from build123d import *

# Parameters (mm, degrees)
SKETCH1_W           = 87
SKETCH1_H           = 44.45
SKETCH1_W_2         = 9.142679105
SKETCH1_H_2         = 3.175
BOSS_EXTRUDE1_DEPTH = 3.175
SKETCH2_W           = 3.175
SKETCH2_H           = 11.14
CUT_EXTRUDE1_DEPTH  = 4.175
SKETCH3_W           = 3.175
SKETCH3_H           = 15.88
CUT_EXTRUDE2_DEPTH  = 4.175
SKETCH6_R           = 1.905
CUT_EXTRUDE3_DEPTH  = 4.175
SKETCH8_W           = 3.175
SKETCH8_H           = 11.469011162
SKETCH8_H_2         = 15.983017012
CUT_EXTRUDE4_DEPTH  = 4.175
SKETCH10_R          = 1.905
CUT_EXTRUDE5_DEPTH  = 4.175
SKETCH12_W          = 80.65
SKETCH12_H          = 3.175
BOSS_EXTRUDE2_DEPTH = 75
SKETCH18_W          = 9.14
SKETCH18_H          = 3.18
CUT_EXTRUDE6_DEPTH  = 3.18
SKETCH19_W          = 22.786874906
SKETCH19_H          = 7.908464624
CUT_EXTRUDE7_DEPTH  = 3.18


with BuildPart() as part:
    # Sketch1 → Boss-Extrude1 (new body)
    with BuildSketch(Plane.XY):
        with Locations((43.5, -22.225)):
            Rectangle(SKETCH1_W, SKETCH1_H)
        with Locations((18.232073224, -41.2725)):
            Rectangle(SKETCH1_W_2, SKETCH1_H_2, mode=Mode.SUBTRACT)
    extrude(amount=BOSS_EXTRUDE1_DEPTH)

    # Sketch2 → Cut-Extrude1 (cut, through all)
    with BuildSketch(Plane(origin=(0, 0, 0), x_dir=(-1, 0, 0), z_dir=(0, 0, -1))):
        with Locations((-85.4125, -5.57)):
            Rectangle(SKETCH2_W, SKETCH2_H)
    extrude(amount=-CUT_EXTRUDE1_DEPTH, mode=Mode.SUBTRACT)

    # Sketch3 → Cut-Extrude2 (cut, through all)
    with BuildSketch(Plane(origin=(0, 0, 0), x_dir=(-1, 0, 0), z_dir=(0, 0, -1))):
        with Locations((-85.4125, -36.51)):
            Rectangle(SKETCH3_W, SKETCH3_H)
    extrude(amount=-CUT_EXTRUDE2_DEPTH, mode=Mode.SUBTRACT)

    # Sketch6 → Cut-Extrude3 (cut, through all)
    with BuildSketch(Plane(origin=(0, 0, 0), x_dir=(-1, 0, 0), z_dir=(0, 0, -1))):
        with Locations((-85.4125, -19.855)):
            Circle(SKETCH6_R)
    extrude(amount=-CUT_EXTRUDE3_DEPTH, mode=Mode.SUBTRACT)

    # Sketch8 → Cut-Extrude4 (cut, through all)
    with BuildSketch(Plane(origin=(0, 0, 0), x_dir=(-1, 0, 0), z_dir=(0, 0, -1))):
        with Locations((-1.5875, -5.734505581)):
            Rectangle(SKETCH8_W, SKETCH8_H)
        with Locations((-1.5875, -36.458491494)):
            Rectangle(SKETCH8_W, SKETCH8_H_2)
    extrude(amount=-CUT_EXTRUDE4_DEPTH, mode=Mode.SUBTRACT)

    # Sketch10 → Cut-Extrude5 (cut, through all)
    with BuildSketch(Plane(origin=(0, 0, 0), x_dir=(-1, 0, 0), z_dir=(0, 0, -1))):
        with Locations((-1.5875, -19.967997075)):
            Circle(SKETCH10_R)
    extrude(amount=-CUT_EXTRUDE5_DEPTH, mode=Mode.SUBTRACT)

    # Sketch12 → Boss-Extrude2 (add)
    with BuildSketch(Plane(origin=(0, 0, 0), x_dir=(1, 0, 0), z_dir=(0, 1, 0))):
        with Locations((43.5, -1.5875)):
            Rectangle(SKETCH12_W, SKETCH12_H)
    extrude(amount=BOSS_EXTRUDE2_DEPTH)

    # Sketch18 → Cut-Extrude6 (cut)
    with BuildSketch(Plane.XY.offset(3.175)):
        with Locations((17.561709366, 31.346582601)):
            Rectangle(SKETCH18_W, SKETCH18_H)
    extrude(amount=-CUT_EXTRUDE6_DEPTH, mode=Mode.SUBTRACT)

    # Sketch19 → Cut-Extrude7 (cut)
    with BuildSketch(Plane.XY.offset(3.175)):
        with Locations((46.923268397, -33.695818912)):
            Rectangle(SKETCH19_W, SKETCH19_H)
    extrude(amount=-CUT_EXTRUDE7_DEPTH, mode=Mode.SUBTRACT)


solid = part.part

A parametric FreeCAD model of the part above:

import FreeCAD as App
import Part
import Sketcher
Q = App.Units.Quantity

doc = App.newDocument("Part")
body = doc.addObject("PartDesign::Body", "Body")

sketch1 = doc.addObject("Sketcher::SketchObject", "Sketch")
body.addObject(sketch1)
sketch1.AttachmentSupport = (doc.XY_Plane, [""])
sketch1.MapMode = "FlatFace"
sketch1.addGeometry(Part.LineSegment(App.Vector(0, 0, 0), App.Vector(0, -44.5, 0)), False)
sketch1.addGeometry(Part.LineSegment(App.Vector(0, -44.5, 0), App.Vector(87, -44.5, 0)), False)
sketch1.addGeometry(Part.LineSegment(App.Vector(87, -44.5, 0), App.Vector(87, 0, 0)), False)
sketch1.addGeometry(Part.LineSegment(App.Vector(87, 0, 0), App.Vector(0, 0, 0)), False)
sketch1.addGeometry(Part.LineSegment(App.Vector(22.8, -42.9, 0), App.Vector(13.7, -42.9, 0)), False)
sketch1.addGeometry(Part.LineSegment(App.Vector(13.7, -42.9, 0), App.Vector(13.7, -39.7, 0)), False)
sketch1.addGeometry(Part.LineSegment(App.Vector(13.7, -39.7, 0), App.Vector(22.8, -39.7, 0)), False)
sketch1.addGeometry(Part.LineSegment(App.Vector(22.8, -39.7, 0), App.Vector(22.8, -42.9, 0)), False)
sketch1.addConstraint(Sketcher.Constraint("Coincident", 0, 2, 1, 1))
sketch1.addConstraint(Sketcher.Constraint("Coincident", 1, 2, 2, 1))
sketch1.addConstraint(Sketcher.Constraint("Coincident", 2, 2, 3, 1))
sketch1.addConstraint(Sketcher.Constraint("Coincident", 3, 2, 0, 1))
sketch1.addConstraint(Sketcher.Constraint("Coincident", 4, 2, 5, 1))
sketch1.addConstraint(Sketcher.Constraint("Coincident", 5, 2, 6, 1))
sketch1.addConstraint(Sketcher.Constraint("Coincident", 6, 2, 7, 1))
sketch1.addConstraint(Sketcher.Constraint("Coincident", 7, 2, 4, 1))
sketch1.addConstraint(Sketcher.Constraint("Vertical", 0))
sketch1.addConstraint(Sketcher.Constraint("Horizontal", 1))
sketch1.addConstraint(Sketcher.Constraint("Vertical", 2))
sketch1.addConstraint(Sketcher.Constraint("Horizontal", 3))
sketch1.addConstraint(Sketcher.Constraint("Horizontal", 4))
sketch1.addConstraint(Sketcher.Constraint("Vertical", 5))
sketch1.addConstraint(Sketcher.Constraint("Horizontal", 6))
sketch1.addConstraint(Sketcher.Constraint("Vertical", 7))
sketch1.addConstraint(Sketcher.Constraint("Coincident", 3, 2, -1, 1))
sketch1.addConstraint(Sketcher.Constraint("DistanceY", 0, 2, 0, 1, Q("1.75 in")))
sketch1.addConstraint(Sketcher.Constraint("DistanceY", 5, 1, 5, 2, Q("0.125 in")))
sketch1.addConstraint(Sketcher.Constraint("DistanceX", 1, 1, 1, 2, Q("87 mm")))
sketch1.addConstraint(Sketcher.Constraint("DistanceX", 4, 2, 4, 1, Q("9.142679 mm")))
sketch1.addConstraint(Sketcher.Constraint("DistanceY", 4, 2, -1, 1, Q("42.86 mm")))
sketch1.addConstraint(Sketcher.Constraint("DistanceX", -1, 1, 4, 2, Q("13.660734 mm")))
pad1 = doc.addObject("PartDesign::Pad", "Pad")
body.addObject(pad1)
pad1.Profile = sketch1
pad1.Length = Q("0.125 in")

sketch2 = doc.addObject("Sketcher::SketchObject", "Sketch001")
body.addObject(sketch2)
sketch2.AttachmentSupport = (doc.XY_Plane, [""])
sketch2.MapMode = "FlatFace"
sketch2.addGeometry(Part.LineSegment(App.Vector(87, 0, 0), App.Vector(87, -11.1, 0)), False)
sketch2.addGeometry(Part.LineSegment(App.Vector(87, -11.1, 0), App.Vector(83.8, -11.1, 0)), False)
sketch2.addGeometry(Part.LineSegment(App.Vector(83.8, -11.1, 0), App.Vector(83.8, 0, 0)), False)
sketch2.addGeometry(Part.LineSegment(App.Vector(83.8, 0, 0), App.Vector(87, 0, 0)), False)
sketch2.addConstraint(Sketcher.Constraint("Coincident", 0, 2, 1, 1))
sketch2.addConstraint(Sketcher.Constraint("Coincident", 1, 2, 2, 1))
sketch2.addConstraint(Sketcher.Constraint("Coincident", 2, 2, 3, 1))
sketch2.addConstraint(Sketcher.Constraint("Coincident", 3, 2, 0, 1))
sketch2.addConstraint(Sketcher.Constraint("Vertical", 0))
sketch2.addConstraint(Sketcher.Constraint("Horizontal", 1))
sketch2.addConstraint(Sketcher.Constraint("Vertical", 2))
sketch2.addConstraint(Sketcher.Constraint("Horizontal", 3))
sketch2.addConstraint(Sketcher.Constraint("PointOnObject", 2, 2, -1))
sketch2.addConstraint(Sketcher.Constraint("DistanceX", 1, 2, 1, 1, Q("0.125 in")))
sketch2.addConstraint(Sketcher.Constraint("DistanceY", 0, 2, 0, 1, Q("11.14 mm")))
sketch2.addConstraint(Sketcher.Constraint("DistanceX", -1, 1, 0, 2, Q("87 mm")))
pocket1 = doc.addObject("PartDesign::Pocket", "Pocket")
body.addObject(pocket1)
pocket1.Profile = sketch2
pocket1.Type = "ThroughAll"
pocket1.Reversed = True

sketch3 = doc.addObject("Sketcher::SketchObject", "Sketch002")
body.addObject(sketch3)
sketch3.AttachmentSupport = (doc.XY_Plane, [""])
sketch3.MapMode = "FlatFace"
sketch3.addGeometry(Part.LineSegment(App.Vector(87, -28.6, 0), App.Vector(87, -44.5, 0)), False)
sketch3.addGeometry(Part.LineSegment(App.Vector(87, -44.5, 0), App.Vector(83.8, -44.5, 0)), False)
sketch3.addGeometry(Part.LineSegment(App.Vector(83.8, -44.5, 0), App.Vector(83.8, -28.6, 0)), False)
sketch3.addGeometry(Part.LineSegment(App.Vector(83.8, -28.6, 0), App.Vector(87, -28.6, 0)), False)
sketch3.addConstraint(Sketcher.Constraint("Coincident", 0, 2, 1, 1))
sketch3.addConstraint(Sketcher.Constraint("Coincident", 1, 2, 2, 1))
sketch3.addConstraint(Sketcher.Constraint("Coincident", 2, 2, 3, 1))
sketch3.addConstraint(Sketcher.Constraint("Coincident", 3, 2, 0, 1))
sketch3.addConstraint(Sketcher.Constraint("Vertical", 0))
sketch3.addConstraint(Sketcher.Constraint("Horizontal", 1))
sketch3.addConstraint(Sketcher.Constraint("Vertical", 2))
sketch3.addConstraint(Sketcher.Constraint("Horizontal", 3))
sketch3.addConstraint(Sketcher.Constraint("DistanceX", 1, 2, 1, 1, Q("0.125 in")))
sketch3.addConstraint(Sketcher.Constraint("DistanceY", 0, 2, -1, 1, Q("1.75 in")))
sketch3.addConstraint(Sketcher.Constraint("DistanceY", 0, 2, 0, 1, Q("15.88 mm")))
sketch3.addConstraint(Sketcher.Constraint("DistanceX", -1, 1, 0, 2, Q("87 mm")))
pocket2 = doc.addObject("PartDesign::Pocket", "Pocket001")
body.addObject(pocket2)
pocket2.Profile = sketch3
pocket2.Type = "ThroughAll"
pocket2.Reversed = True

sketch4 = doc.addObject("Sketcher::SketchObject", "Sketch003")
body.addObject(sketch4)
sketch4.AttachmentSupport = (doc.XY_Plane, [""])
sketch4.MapMode = "FlatFace"
sketch4.addGeometry(Part.Circle(App.Vector(85.4, -19.9, 0), App.Vector(0, 0, 1), 1.9), False)
sketch4.addConstraint(Sketcher.Constraint("Diameter", 0, Q("0.15 in")))
sketch4.addConstraint(Sketcher.Constraint("DistanceX", -1, 1, 0, 3, Q("85.4125 mm")))
sketch4.addConstraint(Sketcher.Constraint("DistanceY", 0, 3, -1, 1, Q("19.855 mm")))
pocket3 = doc.addObject("PartDesign::Pocket", "Pocket002")
body.addObject(pocket3)
pocket3.Profile = sketch4
pocket3.Type = "ThroughAll"
pocket3.Reversed = True

sketch5 = doc.addObject("Sketcher::SketchObject", "Sketch004")
body.addObject(sketch5)
sketch5.AttachmentSupport = (doc.XY_Plane, [""])
sketch5.MapMode = "FlatFace"
sketch5.addGeometry(Part.LineSegment(App.Vector(3.2, 0, 0), App.Vector(3.2, -11.5, 0)), False)
sketch5.addGeometry(Part.LineSegment(App.Vector(3.2, -11.5, 0), App.Vector(0, -11.5, 0)), False)
sketch5.addGeometry(Part.LineSegment(App.Vector(0, -11.5, 0), App.Vector(0, 0, 0)), False)
sketch5.addGeometry(Part.LineSegment(App.Vector(0, 0, 0), App.Vector(3.2, 0, 0)), False)
sketch5.addGeometry(Part.LineSegment(App.Vector(3.2, -28.5, 0), App.Vector(3.2, -44.5, 0)), False)
sketch5.addGeometry(Part.LineSegment(App.Vector(3.2, -44.5, 0), App.Vector(0, -44.5, 0)), False)
sketch5.addGeometry(Part.LineSegment(App.Vector(0, -44.5, 0), App.Vector(0, -28.5, 0)), False)
sketch5.addGeometry(Part.LineSegment(App.Vector(0, -28.5, 0), App.Vector(3.2, -28.5, 0)), False)
sketch5.addConstraint(Sketcher.Constraint("Coincident", 0, 2, 1, 1))
sketch5.addConstraint(Sketcher.Constraint("Coincident", 1, 2, 2, 1))
sketch5.addConstraint(Sketcher.Constraint("Coincident", 2, 2, 3, 1))
sketch5.addConstraint(Sketcher.Constraint("Coincident", 3, 2, 0, 1))
sketch5.addConstraint(Sketcher.Constraint("Coincident", 4, 2, 5, 1))
sketch5.addConstraint(Sketcher.Constraint("Coincident", 5, 2, 6, 1))
sketch5.addConstraint(Sketcher.Constraint("Coincident", 6, 2, 7, 1))
sketch5.addConstraint(Sketcher.Constraint("Coincident", 7, 2, 4, 1))
sketch5.addConstraint(Sketcher.Constraint("Vertical", 0))
sketch5.addConstraint(Sketcher.Constraint("Horizontal", 1))
sketch5.addConstraint(Sketcher.Constraint("Vertical", 2))
sketch5.addConstraint(Sketcher.Constraint("Horizontal", 3))
sketch5.addConstraint(Sketcher.Constraint("Vertical", 4))
sketch5.addConstraint(Sketcher.Constraint("Horizontal", 5))
sketch5.addConstraint(Sketcher.Constraint("Vertical", 6))
sketch5.addConstraint(Sketcher.Constraint("Horizontal", 7))
sketch5.addConstraint(Sketcher.Constraint("Coincident", 2, 2, -1, 1))
sketch5.addConstraint(Sketcher.Constraint("PointOnObject", 5, 2, -2))
sketch5.addConstraint(Sketcher.Constraint("Vertical", 3, 2, 4, 2))
sketch5.addConstraint(Sketcher.Constraint("DistanceX", 1, 2, 1, 1, Q("0.125 in")))
sketch5.addConstraint(Sketcher.Constraint("DistanceY", 4, 2, -1, 1, Q("1.75 in")))
sketch5.addConstraint(Sketcher.Constraint("DistanceY", 0, 2, 0, 1, Q("11.469011 mm")))
sketch5.addConstraint(Sketcher.Constraint("DistanceY", 4, 2, 4, 1, Q("15.983017 mm")))
pocket4 = doc.addObject("PartDesign::Pocket", "Pocket003")
body.addObject(pocket4)
pocket4.Profile = sketch5
pocket4.Type = "ThroughAll"
pocket4.Reversed = True

sketch6 = doc.addObject("Sketcher::SketchObject", "Sketch005")
body.addObject(sketch6)
sketch6.AttachmentSupport = (doc.XY_Plane, [""])
sketch6.MapMode = "FlatFace"
sketch6.addGeometry(Part.Circle(App.Vector(1.6, -20, 0), App.Vector(0, 0, 1), 1.9), False)
sketch6.addConstraint(Sketcher.Constraint("Diameter", 0, Q("0.15 in")))
sketch6.addConstraint(Sketcher.Constraint("DistanceX", -1, 1, 0, 3, Q("0.0625 in")))
sketch6.addConstraint(Sketcher.Constraint("DistanceY", 0, 3, -1, 1, Q("19.967997 mm")))
pocket5 = doc.addObject("PartDesign::Pocket", "Pocket004")
body.addObject(pocket5)
pocket5.Profile = sketch6
pocket5.Type = "ThroughAll"
pocket5.Reversed = True

sketch7 = doc.addObject("Sketcher::SketchObject", "Sketch006")
body.addObject(sketch7)
sketch7.AttachmentSupport = (doc.XZ_Plane, [""])
sketch7.MapMode = "FlatFace"
sketch7.addGeometry(Part.LineSegment(App.Vector(3.2, 0, 0), App.Vector(3.2, 3.2, 0)), False)
sketch7.addGeometry(Part.LineSegment(App.Vector(3.2, 3.2, 0), App.Vector(83.8, 3.2, 0)), False)
sketch7.addGeometry(Part.LineSegment(App.Vector(83.8, 3.2, 0), App.Vector(83.8, 0, 0)), False)
sketch7.addGeometry(Part.LineSegment(App.Vector(83.8, 0, 0), App.Vector(3.2, 0, 0)), False)
sketch7.addConstraint(Sketcher.Constraint("Coincident", 0, 2, 1, 1))
sketch7.addConstraint(Sketcher.Constraint("Coincident", 1, 2, 2, 1))
sketch7.addConstraint(Sketcher.Constraint("Coincident", 2, 2, 3, 1))
sketch7.addConstraint(Sketcher.Constraint("Coincident", 3, 2, 0, 1))
sketch7.addConstraint(Sketcher.Constraint("Vertical", 0))
sketch7.addConstraint(Sketcher.Constraint("Horizontal", 1))
sketch7.addConstraint(Sketcher.Constraint("Vertical", 2))
sketch7.addConstraint(Sketcher.Constraint("Horizontal", 3))
sketch7.addConstraint(Sketcher.Constraint("PointOnObject", 2, 2, -1))
sketch7.addConstraint(Sketcher.Constraint("DistanceY", 0, 1, 0, 2, Q("0.125 in")))
sketch7.addConstraint(Sketcher.Constraint("DistanceX", -1, 1, 0, 2, Q("0.125 in")))
sketch7.addConstraint(Sketcher.Constraint("DistanceX", 1, 1, 1, 2, Q("80.65 mm")))
pad2 = doc.addObject("PartDesign::Pad", "Pad001")
body.addObject(pad2)
pad2.Profile = sketch7
pad2.Length = 75
pad2.Reversed = True

sketch8 = doc.addObject("Sketcher::SketchObject", "Sketch007")
body.addObject(sketch8)
sketch8.AttachmentSupport = (doc.XY_Plane, [""])
sketch8.MapMode = "FlatFace"
sketch8.AttachmentOffset = App.Placement(App.Vector(0, 0, 0.125 * 25.4), App.Rotation())
sketch8.addGeometry(Part.LineSegment(App.Vector(13, 32.9, 0), App.Vector(13, 29.8, 0)), False)
sketch8.addGeometry(Part.LineSegment(App.Vector(13, 29.8, 0), App.Vector(22.1, 29.8, 0)), False)
sketch8.addGeometry(Part.LineSegment(App.Vector(22.1, 29.8, 0), App.Vector(22.1, 32.9, 0)), False)
sketch8.addGeometry(Part.LineSegment(App.Vector(22.1, 32.9, 0), App.Vector(13, 32.9, 0)), False)
sketch8.addConstraint(Sketcher.Constraint("Coincident", 0, 2, 1, 1))
sketch8.addConstraint(Sketcher.Constraint("Coincident", 1, 2, 2, 1))
sketch8.addConstraint(Sketcher.Constraint("Coincident", 2, 2, 3, 1))
sketch8.addConstraint(Sketcher.Constraint("Coincident", 3, 2, 0, 1))
sketch8.addConstraint(Sketcher.Constraint("Vertical", 0))
sketch8.addConstraint(Sketcher.Constraint("Horizontal", 1))
sketch8.addConstraint(Sketcher.Constraint("Vertical", 2))
sketch8.addConstraint(Sketcher.Constraint("Horizontal", 3))
sketch8.addConstraint(Sketcher.Constraint("DistanceX", 1, 1, 1, 2, Q("9.14 mm")))
sketch8.addConstraint(Sketcher.Constraint("DistanceY", 0, 2, 0, 1, Q("3.18 mm")))
sketch8.addConstraint(Sketcher.Constraint("DistanceX", -1, 1, 0, 2, Q("12.991709 mm")))
sketch8.addConstraint(Sketcher.Constraint("DistanceY", -1, 1, 0, 2, Q("29.756583 mm")))
pocket6 = doc.addObject("PartDesign::Pocket", "Pocket005")
body.addObject(pocket6)
pocket6.Profile = sketch8
pocket6.Length = 3.18

sketch9 = doc.addObject("Sketcher::SketchObject", "Sketch008")
body.addObject(sketch9)
sketch9.AttachmentSupport = (doc.XY_Plane, [""])
sketch9.MapMode = "FlatFace"
sketch9.AttachmentOffset = App.Placement(App.Vector(0, 0, 0.125 * 25.4), App.Rotation())
sketch9.addGeometry(Part.LineSegment(App.Vector(36, -30, 0), App.Vector(36, -38, 0)), False)
sketch9.addGeometry(Part.LineSegment(App.Vector(36, -38, 0), App.Vector(58, -38, 0)), False)
sketch9.addGeometry(Part.LineSegment(App.Vector(58, -38, 0), App.Vector(58, -30, 0)), False)
sketch9.addGeometry(Part.LineSegment(App.Vector(58, -30, 0), App.Vector(36, -30, 0)), False)
sketch9.addConstraint(Sketcher.Constraint("Coincident", 0, 2, 1, 1))
sketch9.addConstraint(Sketcher.Constraint("Coincident", 1, 2, 2, 1))
sketch9.addConstraint(Sketcher.Constraint("Coincident", 2, 2, 3, 1))
sketch9.addConstraint(Sketcher.Constraint("Coincident", 3, 2, 0, 1))
sketch9.addConstraint(Sketcher.Constraint("Vertical", 0))
sketch9.addConstraint(Sketcher.Constraint("Horizontal", 1))
sketch9.addConstraint(Sketcher.Constraint("Vertical", 2))
sketch9.addConstraint(Sketcher.Constraint("Horizontal", 3))
sketch9.addConstraint(Sketcher.Constraint("DistanceX", 1, 1, 1, 2, Q("22.786875 mm")))
sketch9.addConstraint(Sketcher.Constraint("DistanceY", 0, 2, 0, 1, Q("7.908465 mm")))
sketch9.addConstraint(Sketcher.Constraint("DistanceX", -1, 1, 0, 2, Q("35.529831 mm")))
sketch9.addConstraint(Sketcher.Constraint("DistanceY", 0, 2, -1, 1, Q("37.650051 mm")))
pocket7 = doc.addObject("PartDesign::Pocket", "Pocket006")
body.addObject(pocket7)
pocket7.Profile = sketch9
pocket7.Length = 3.18

doc.recompute()
